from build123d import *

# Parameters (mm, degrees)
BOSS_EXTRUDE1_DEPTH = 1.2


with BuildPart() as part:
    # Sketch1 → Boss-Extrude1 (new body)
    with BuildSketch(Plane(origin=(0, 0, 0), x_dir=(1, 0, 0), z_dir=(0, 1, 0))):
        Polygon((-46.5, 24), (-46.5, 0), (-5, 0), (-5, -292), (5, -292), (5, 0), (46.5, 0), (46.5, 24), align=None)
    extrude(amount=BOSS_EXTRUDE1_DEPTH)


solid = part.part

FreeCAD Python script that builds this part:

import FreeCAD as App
import Part
import Sketcher
from FreeCAD import Vector

doc = App.newDocument("Part")
body = doc.addObject("PartDesign::Body", "Body")

sketch1 = doc.addObject("Sketcher::SketchObject", "Sketch")
body.addObject(sketch1)
sketch1.AttachmentSupport = (doc.XZ_Plane, [""])
sketch1.MapMode = "FlatFace"
sketch1.addGeometry(Part.LineSegment(Vector(-46.5, -24, 0), Vector(-46.5, 0, 0)), False)
sketch1.addGeometry(Part.LineSegment(Vector(-46.5, 0, 0), Vector(-5, 0, 0)), False)
sketch1.addGeometry(Part.LineSegment(Vector(-5, 0, 0), Vector(-5, 292, 0)), False)
sketch1.addGeometry(Part.LineSegment(Vector(-5, 292, 0), Vector(5, 292, 0)), False)
sketch1.addGeometry(Part.LineSegment(Vector(5, 292, 0), Vector(5, 0, 0)), False)
sketch1.addGeometry(Part.LineSegment(Vector(5, 0, 0), Vector(46.5, 0, 0)), False)
sketch1.addGeometry(Part.LineSegment(Vector(46.5, 0, 0), Vector(46.5, -24, 0)), False)
sketch1.addGeometry(Part.LineSegment(Vector(46.5, -24, 0), Vector(-46.5, -24, 0)), False)
sketch1.addConstraint(Sketcher.Constraint("Coincident", 0, 2, 1, 1))
sketch1.addConstraint(Sketcher.Constraint("Coincident", 1, 2, 2, 1))
sketch1.addConstraint(Sketcher.Constraint("Coincident", 2, 2, 3, 1))
sketch1.addConstraint(Sketcher.Constraint("Coincident", 3, 2, 4, 1))
sketch1.addConstraint(Sketcher.Constraint("Coincident", 4, 2, 5, 1))
sketch1.addConstraint(Sketcher.Constraint("Coincident", 5, 2, 6, 1))
sketch1.addConstraint(Sketcher.Constraint("Coincident", 6, 2, 7, 1))
sketch1.addConstraint(Sketcher.Constraint("Coincident", 7, 2, 0, 1))
sketch1.addConstraint(Sketcher.Constraint("Vertical", 0))
sketch1.addConstraint(Sketcher.Constraint("Horizontal", 1))
sketch1.addConstraint(Sketcher.Constraint("Vertical", 2))
sketch1.addConstraint(Sketcher.Constraint("Horizontal", 3))
sketch1.addConstraint(Sketcher.Constraint("Vertical", 4))
sketch1.addConstraint(Sketcher.Constraint("Horizontal", 5))
sketch1.addConstraint(Sketcher.Constraint("Vertical", 6))
sketch1.addConstraint(Sketcher.Constraint("Horizontal", 7))
sketch1.addConstraint(Sketcher.Constraint("Symmetric", 1, 2, 4, 2, -1, 1))
sketch1.addConstraint(Sketcher.Constraint("Symmetric", 0, 2, 5, 2, -2))
sketch1.addConstraint(Sketcher.Constraint("DistanceX", 3, 1, 3, 2, 10.0))
sketch1.addConstraint(Sketcher.Constraint("DistanceX", 7, 2, 7, 1, 93.0))
sketch1.addConstraint(Sketcher.Constraint("DistanceY", 0, 1, 0, 2, 24.0))
sketch1.addConstraint(Sketcher.Constraint("DistanceY", 2, 1, 2, 2, 292.0))
pad1 = doc.addObject("PartDesign::Pad", "Pad")
body.addObject(pad1)
pad1.Profile = sketch1
pad1.Length = 1.2
pad1.Reversed = True

doc.recompute()
